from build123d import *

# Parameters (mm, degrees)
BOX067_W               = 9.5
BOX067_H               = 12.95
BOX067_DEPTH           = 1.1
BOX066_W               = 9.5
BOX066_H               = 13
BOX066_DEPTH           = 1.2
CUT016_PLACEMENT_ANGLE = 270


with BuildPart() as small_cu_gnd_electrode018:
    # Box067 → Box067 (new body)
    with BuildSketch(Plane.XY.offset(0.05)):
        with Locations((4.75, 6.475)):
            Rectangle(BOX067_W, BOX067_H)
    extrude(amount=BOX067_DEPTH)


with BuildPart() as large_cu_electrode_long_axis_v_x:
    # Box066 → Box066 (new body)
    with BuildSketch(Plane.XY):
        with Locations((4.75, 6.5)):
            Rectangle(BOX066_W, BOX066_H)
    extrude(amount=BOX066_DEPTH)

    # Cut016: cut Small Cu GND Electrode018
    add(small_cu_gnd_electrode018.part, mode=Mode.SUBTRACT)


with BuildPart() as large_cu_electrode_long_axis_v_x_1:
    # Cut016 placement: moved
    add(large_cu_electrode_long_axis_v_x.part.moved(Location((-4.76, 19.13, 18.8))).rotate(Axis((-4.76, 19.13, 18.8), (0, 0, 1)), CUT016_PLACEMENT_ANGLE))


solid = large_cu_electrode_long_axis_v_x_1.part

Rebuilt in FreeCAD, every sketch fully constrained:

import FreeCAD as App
import Part
import Sketcher
from FreeCAD import Vector
Q = App.Units.Quantity


def add_polygon(sketch, points):
    """Adds a closed chain of lines whose ends are joined by coincident constraints."""
    first, n = sketch.GeometryCount, len(points)
    for a, b in zip(points, points[1:] + points[:1]):
        sketch.addGeometry(Part.LineSegment(App.Vector(*a, 0), App.Vector(*b, 0)), False)
    for i in range(n):
        sketch.addConstraint(Sketcher.Constraint("Coincident", first + i, 2, first + (i + 1) % n, 1))

doc = App.newDocument("Part")
params = doc.addObject("Spreadsheet::Sheet", "Params")
for row, (alias, value) in enumerate([
    ("sketch1_width", "9.5 mm"),
    ("sketch1_height", "12.95 mm"),
    ("pad1_length", "1.1 mm"),
    ("sketch2_height", "13 mm"),
    ("sketch2_width", "9.5 mm"),
    ("pad2_length", "1.2 mm"),
], start=1):
    params.set(f"A{row}", alias)
    params.set(f"B{row}", "=" + value)
    params.setAlias(f"B{row}", alias)

body = doc.addObject("PartDesign::Body", "Body")

# Sketch on XY plane
sketch1 = body.newObject("Sketcher::SketchObject", "Sketch")
sketch1.AttachmentSupport = (doc.getObject("XY_Plane"), [""])
sketch1.MapMode = "FlatFace"
sketch1.AttachmentOffset = App.Placement(Vector(0, 0, 0.05), App.Rotation())
add_polygon(sketch1, [(0, 13), (0, 0), (10, 0), (10, 13)])  # lines 0-3
sketch1.addConstraint(Sketcher.Constraint("Vertical", 0))
sketch1.addConstraint(Sketcher.Constraint("Horizontal", 1))
sketch1.addConstraint(Sketcher.Constraint("Vertical", 2))
sketch1.addConstraint(Sketcher.Constraint("Horizontal", 3))
sketch1.addConstraint(Sketcher.Constraint("Coincident", 0, 2, -1, 1))
sketch1.addConstraint(Sketcher.Constraint("DistanceX", 1, 1, 1, 2, Q("9.5 mm")))
sketch1.addConstraint(Sketcher.Constraint("DistanceY", 0, 2, 0, 1, Q("12.95 mm")))
sketch1.setExpression("Constraints[9]", "Params.sketch1_width")
sketch1.setExpression("Constraints[10]", "Params.sketch1_height")
pad1 = body.newObject("PartDesign::Pad", "Pad")
pad1.Profile = sketch1
pad1.setExpression("Length", "Params.pad1_length")
body2 = doc.addObject("PartDesign::Body", "Body001")

# Sketch on XY plane
sketch2 = body2.newObject("Sketcher::SketchObject", "Sketch001")
sketch2.AttachmentSupport = (doc.getObject("XY_Plane001"), [""])
sketch2.MapMode = "FlatFace"
add_polygon(sketch2, [(0, 13), (0, 0), (10, 0), (10, 13)])  # lines 0-3
sketch2.addConstraint(Sketcher.Constraint("Vertical", 0))
sketch2.addConstraint(Sketcher.Constraint("Horizontal", 1))
sketch2.addConstraint(Sketcher.Constraint("Vertical", 2))
sketch2.addConstraint(Sketcher.Constraint("Horizontal", 3))
sketch2.addConstraint(Sketcher.Constraint("Coincident", 0, 2, -1, 1))
sketch2.addConstraint(Sketcher.Constraint("DistanceY", 0, 2, 0, 1, Q("13 mm")))
sketch2.addConstraint(Sketcher.Constraint("DistanceX", 1, 1, 1, 2, Q("9.5 mm")))
sketch2.setExpression("Constraints[9]", "Params.sketch2_height")
sketch2.setExpression("Constraints[10]", "Params.sketch2_width")
pad2 = body2.newObject("PartDesign::Pad", "Pad001")
pad2.Profile = sketch2
pad2.setExpression("Length", "Params.pad2_length")
doc.recompute()

boolean = body2.newObject("PartDesign::Boolean", "Boolean")
boolean.Type = "Cut"
boolean.addObjects([body])
body3 = doc.addObject("PartDesign::Body", "Body002")
doc.recompute()

body2.Placement = App.Placement(Vector(-4.76, 19.13, 18.8), App.Rotation(Vector(0, 0, 1), 270))
boolean2 = body3.newObject("PartDesign::Boolean", "Boolean001")
boolean2.Type = "Fuse"
boolean2.addObjects([body2])

doc.recompute()
